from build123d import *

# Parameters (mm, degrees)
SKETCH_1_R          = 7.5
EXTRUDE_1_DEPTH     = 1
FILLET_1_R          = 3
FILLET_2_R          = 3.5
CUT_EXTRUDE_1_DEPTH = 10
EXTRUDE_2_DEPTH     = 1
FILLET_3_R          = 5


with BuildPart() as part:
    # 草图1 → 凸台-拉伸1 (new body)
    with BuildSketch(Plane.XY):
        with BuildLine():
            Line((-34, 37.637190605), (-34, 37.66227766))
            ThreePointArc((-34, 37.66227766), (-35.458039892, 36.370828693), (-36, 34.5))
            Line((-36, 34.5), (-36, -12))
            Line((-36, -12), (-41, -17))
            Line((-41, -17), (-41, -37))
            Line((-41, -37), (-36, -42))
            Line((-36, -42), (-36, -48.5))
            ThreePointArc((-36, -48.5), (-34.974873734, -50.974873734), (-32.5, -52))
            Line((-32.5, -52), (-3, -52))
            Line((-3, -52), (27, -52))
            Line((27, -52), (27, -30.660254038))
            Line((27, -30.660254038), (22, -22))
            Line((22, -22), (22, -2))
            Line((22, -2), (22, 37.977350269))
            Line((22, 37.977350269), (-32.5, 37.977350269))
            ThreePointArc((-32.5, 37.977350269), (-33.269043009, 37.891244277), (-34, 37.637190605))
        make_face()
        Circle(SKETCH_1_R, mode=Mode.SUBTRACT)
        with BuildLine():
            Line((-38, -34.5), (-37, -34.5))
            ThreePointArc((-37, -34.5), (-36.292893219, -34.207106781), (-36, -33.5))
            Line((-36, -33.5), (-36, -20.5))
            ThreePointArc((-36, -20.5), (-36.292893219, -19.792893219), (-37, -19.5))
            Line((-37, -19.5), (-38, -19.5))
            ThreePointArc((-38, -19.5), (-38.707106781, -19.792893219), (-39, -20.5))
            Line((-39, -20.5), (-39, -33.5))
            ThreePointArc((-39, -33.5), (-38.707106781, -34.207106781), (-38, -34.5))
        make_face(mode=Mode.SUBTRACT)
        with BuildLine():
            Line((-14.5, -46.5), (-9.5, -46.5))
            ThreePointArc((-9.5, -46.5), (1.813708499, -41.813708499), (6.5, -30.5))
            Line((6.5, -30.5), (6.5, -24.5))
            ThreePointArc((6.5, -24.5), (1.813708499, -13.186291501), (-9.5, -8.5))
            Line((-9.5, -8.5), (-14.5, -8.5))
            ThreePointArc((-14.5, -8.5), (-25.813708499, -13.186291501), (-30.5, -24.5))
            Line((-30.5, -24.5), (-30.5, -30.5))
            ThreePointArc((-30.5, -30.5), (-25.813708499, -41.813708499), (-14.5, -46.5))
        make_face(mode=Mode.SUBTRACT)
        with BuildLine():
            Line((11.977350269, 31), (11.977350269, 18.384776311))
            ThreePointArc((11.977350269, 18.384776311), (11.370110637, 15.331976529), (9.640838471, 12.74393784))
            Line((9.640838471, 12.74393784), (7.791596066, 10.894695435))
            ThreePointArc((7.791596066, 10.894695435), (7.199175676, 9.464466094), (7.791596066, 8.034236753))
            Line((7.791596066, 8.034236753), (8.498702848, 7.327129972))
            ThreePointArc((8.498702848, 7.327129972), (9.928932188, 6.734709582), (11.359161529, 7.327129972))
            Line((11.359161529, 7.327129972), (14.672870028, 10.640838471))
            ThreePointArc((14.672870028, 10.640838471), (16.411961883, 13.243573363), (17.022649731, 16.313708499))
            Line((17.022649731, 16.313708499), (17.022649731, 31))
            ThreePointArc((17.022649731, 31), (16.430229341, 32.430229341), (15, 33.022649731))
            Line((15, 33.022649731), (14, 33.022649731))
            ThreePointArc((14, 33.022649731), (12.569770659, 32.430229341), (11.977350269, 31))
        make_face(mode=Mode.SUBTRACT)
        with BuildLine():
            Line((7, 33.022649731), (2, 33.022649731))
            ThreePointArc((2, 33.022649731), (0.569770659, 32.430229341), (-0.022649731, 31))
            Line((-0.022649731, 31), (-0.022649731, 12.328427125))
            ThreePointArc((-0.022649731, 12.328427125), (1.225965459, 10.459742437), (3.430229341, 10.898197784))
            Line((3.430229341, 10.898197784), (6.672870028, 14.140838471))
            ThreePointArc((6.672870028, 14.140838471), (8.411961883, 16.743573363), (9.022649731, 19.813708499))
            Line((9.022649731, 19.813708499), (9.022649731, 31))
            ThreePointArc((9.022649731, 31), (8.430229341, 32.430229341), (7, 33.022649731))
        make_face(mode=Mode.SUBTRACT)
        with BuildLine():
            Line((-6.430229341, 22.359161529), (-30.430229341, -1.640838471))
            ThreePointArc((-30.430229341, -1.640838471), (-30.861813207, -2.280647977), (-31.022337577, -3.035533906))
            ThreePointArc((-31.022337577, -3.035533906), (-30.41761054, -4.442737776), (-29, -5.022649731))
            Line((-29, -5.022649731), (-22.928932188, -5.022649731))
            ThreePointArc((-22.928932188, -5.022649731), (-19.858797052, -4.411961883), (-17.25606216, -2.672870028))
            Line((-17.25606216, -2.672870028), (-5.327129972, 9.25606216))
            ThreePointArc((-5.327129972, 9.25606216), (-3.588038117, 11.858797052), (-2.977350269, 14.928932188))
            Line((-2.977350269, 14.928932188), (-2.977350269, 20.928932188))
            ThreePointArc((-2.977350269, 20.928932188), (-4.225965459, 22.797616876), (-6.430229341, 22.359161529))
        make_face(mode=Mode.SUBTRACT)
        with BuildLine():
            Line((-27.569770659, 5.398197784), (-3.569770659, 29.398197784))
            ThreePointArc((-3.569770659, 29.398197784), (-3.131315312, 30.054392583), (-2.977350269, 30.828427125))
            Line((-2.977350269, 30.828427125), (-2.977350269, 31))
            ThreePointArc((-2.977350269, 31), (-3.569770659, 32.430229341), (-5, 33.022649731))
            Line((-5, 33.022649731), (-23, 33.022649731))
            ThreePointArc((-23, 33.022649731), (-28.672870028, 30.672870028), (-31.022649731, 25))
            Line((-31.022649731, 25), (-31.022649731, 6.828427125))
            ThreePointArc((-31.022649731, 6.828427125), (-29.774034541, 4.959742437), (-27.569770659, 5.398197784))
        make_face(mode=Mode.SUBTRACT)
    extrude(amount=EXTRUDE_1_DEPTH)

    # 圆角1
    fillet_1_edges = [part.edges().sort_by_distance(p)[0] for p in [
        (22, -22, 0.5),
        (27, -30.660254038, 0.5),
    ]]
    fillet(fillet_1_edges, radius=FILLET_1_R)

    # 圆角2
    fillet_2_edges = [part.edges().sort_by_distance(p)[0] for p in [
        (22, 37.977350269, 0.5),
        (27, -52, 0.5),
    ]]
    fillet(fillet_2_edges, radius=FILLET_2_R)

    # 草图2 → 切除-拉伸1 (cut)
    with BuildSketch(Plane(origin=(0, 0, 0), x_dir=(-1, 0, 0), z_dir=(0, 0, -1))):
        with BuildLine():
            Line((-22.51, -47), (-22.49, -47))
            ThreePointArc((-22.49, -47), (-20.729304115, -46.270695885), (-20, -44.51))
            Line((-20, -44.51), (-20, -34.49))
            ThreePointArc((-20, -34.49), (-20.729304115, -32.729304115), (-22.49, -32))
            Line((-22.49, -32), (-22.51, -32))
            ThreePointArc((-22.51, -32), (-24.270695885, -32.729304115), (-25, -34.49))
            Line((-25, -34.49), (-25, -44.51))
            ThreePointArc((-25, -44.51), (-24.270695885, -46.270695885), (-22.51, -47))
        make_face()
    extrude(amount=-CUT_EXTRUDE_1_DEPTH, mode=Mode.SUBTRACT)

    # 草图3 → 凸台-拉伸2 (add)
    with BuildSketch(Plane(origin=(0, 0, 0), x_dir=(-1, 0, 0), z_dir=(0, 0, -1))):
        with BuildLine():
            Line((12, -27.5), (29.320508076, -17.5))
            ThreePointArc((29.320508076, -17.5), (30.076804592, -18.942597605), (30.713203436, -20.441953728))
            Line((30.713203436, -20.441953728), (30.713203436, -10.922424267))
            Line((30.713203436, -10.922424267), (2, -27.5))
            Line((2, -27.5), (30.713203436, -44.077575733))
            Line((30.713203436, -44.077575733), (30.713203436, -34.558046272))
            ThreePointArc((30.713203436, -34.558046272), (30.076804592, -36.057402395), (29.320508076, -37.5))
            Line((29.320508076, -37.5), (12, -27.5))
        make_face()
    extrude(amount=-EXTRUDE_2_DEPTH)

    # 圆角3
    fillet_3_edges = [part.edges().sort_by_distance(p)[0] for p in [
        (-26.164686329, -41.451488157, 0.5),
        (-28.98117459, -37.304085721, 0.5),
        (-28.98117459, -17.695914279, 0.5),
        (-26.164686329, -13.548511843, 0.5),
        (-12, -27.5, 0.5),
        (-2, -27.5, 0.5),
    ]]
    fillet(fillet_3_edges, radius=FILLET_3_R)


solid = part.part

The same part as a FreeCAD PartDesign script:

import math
import FreeCAD as App
import Part
import Sketcher
from FreeCAD import Vector
Q = App.Units.Quantity


def edges_at(feature, points):
    """Names of the edges that pass closest to the given points."""
    edges = feature.Shape.Edges
    near = lambda p: min(range(len(edges)), key=lambda i: edges[i].distToShape(Part.Vertex(*p))[0])
    return sorted({f"Edge{near(p) + 1}" for p in points})

doc = App.newDocument("Part")
body = doc.addObject("PartDesign::Body", "Body")

sketch1 = doc.addObject("Sketcher::SketchObject", "Sketch")
body.addObject(sketch1)
sketch1.AttachmentSupport = (doc.XY_Plane, [""])
sketch1.MapMode = "FlatFace"
sketch1.addGeometry(Part.LineSegment(Vector(-34, 37.637, 0), Vector(-34, 37.662, 0)), False)
sketch1.addGeometry(Part.ArcOfCircle(Part.Circle(Vector(-32.5, 34.5, 0), Vector(0, 0, 1), 3.5), math.radians(115), math.radians(180)), False)
sketch1.addGeometry(Part.LineSegment(Vector(-36, 34.5, 0), Vector(-36, -12, 0)), False)
sketch1.addGeometry(Part.LineSegment(Vector(-36, -12, 0), Vector(-41, -17, 0)), False)
sketch1.addGeometry(Part.LineSegment(Vector(-41, -17, 0), Vector(-41, -37, 0)), False)
sketch1.addGeometry(Part.LineSegment(Vector(-41, -37, 0), Vector(-36, -42, 0)), False)
sketch1.addGeometry(Part.LineSegment(Vector(-36, -42, 0), Vector(-36, -48.5, 0)), False)
sketch1.addGeometry(Part.ArcOfCircle(Part.Circle(Vector(-32.5, -48.5, 0), Vector(0, 0, 1), 3.5), math.radians(-180), math.radians(-90)), False)
sketch1.addGeometry(Part.LineSegment(Vector(-32.5, -52, 0), Vector(27, -52, 0)), False)
sketch1.addGeometry(Part.LineSegment(Vector(27, -52, 0), Vector(27, -30.66, 0)), False)
sketch1.addGeometry(Part.LineSegment(Vector(27, -30.66, 0), Vector(22, -22, 0)), False)
sketch1.addGeometry(Part.LineSegment(Vector(22, -22, 0), Vector(22, 37.977, 0)), False)
sketch1.addGeometry(Part.LineSegment(Vector(22, 37.977, 0), Vector(-32.5, 37.977, 0)), False)
sketch1.addGeometry(Part.ArcOfCircle(Part.Circle(Vector(-32.5, 34.5, 0), Vector(0, 0, 1), 3.477), math.radians(90), math.radians(116)), False)
sketch1.addGeometry(Part.LineSegment(Vector(-37, -34.5, 0), Vector(-38, -34.5, 0)), False)
sketch1.addGeometry(Part.ArcOfCircle(Part.Circle(Vector(-38, -33.5, 0), Vector(0, 0, 1), 1), math.radians(-180), math.radians(-90)), False)
sketch1.addGeometry(Part.LineSegment(Vector(-39, -33.5, 0), Vector(-39, -20.5, 0)), False)
sketch1.addGeometry(Part.ArcOfCircle(Part.Circle(Vector(-38, -20.5, 0), Vector(0, 0, 1), 1), math.radians(90), math.radians(180)), False)
sketch1.addGeometry(Part.LineSegment(Vector(-38, -19.5, 0), Vector(-37, -19.5, 0)), False)
sketch1.addGeometry(Part.ArcOfCircle(Part.Circle(Vector(-37, -20.5, 0), Vector(0, 0, 1), 1), math.radians(0), math.radians(90)), False)
sketch1.addGeometry(Part.LineSegment(Vector(-36, -20.5, 0), Vector(-36, -33.5, 0)), False)
sketch1.addGeometry(Part.ArcOfCircle(Part.Circle(Vector(-37, -33.5, 0), Vector(0, 0, 1), 1), math.radians(-90), math.radians(0)), False)
sketch1.addGeometry(Part.LineSegment(Vector(-9.5, -46.5, 0), Vector(-14.5, -46.5, 0)), False)
sketch1.addGeometry(Part.ArcOfCircle(Part.Circle(Vector(-14.5, -30.5, 0), Vector(0, 0, 1), 16), math.radians(180), math.radians(270)), False)
sketch1.addGeometry(Part.LineSegment(Vector(-30.5, -30.5, 0), Vector(-30.5, -24.5, 0)), False)
sketch1.addGeometry(Part.ArcOfCircle(Part.Circle(Vector(-14.5, -24.5, 0), Vector(0, 0, 1), 16), math.radians(90), math.radians(180)), False)
sketch1.addGeometry(Part.LineSegment(Vector(-14.5, -8.5, 0), Vector(-9.5, -8.5, 0)), False)
sketch1.addGeometry(Part.ArcOfCircle(Part.Circle(Vector(-9.5, -24.5, 0), Vector(0, 0, 1), 16), math.radians(0), math.radians(90)), False)
sketch1.addGeometry(Part.LineSegment(Vector(6.5, -24.5, 0), Vector(6.5, -30.5, 0)), False)
sketch1.addGeometry(Part.ArcOfCircle(Part.Circle(Vector(-9.5, -30.5, 0), Vector(0, 0, 1), 16), math.radians(-90), math.radians(0)), False)
sketch1.addGeometry(Part.LineSegment(Vector(-30.43, -1.641, 0), Vector(-6.43, 22.359, 0)), False)
sketch1.addGeometry(Part.ArcOfCircle(Part.Circle(Vector(-5, 20.929, 0), Vector(0, 0, 1), 2.023), math.radians(0), math.radians(135)), False)
sketch1.addGeometry(Part.LineSegment(Vector(-2.977, 20.929, 0), Vector(-2.977, 14.929, 0)), False)
sketch1.addGeometry(Part.ArcOfCircle(Part.Circle(Vector(-11, 14.929, 0), Vector(0, 0, 1), 8.023), math.radians(-45), math.radians(0)), False)
sketch1.addGeometry(Part.LineSegment(Vector(-5.327, 9.256, 0), Vector(-17.256, -2.673, 0)), False)
sketch1.addGeometry(Part.ArcOfCircle(Part.Circle(Vector(-22.929, 3, 0), Vector(0, 0, 1), 8.023), math.radians(-90), math.radians(-45)), False)
sketch1.addGeometry(Part.LineSegment(Vector(-22.929, -5.023, 0), Vector(-29, -5.023, 0)), False)
sketch1.addGeometry(Part.ArcOfCircle(Part.Circle(Vector(-29, -3, 0), Vector(0, 0, 1), 2.023), math.radians(-179), math.radians(-90)), False)
sketch1.addGeometry(Part.ArcOfCircle(Part.Circle(Vector(-29, -3.071, 0), Vector(0, 0, 1), 2.023), math.radians(135), math.radians(179)), False)
sketch1.addGeometry(Part.LineSegment(Vector(-3.57, 29.398, 0), Vector(-27.57, 5.398, 0)), False)
sketch1.addGeometry(Part.ArcOfCircle(Part.Circle(Vector(-29, 6.828, 0), Vector(0, 0, 1), 2.023), math.radians(180), math.radians(315)), False)
sketch1.addGeometry(Part.LineSegment(Vector(-31.023, 6.828, 0), Vector(-31.023, 25, 0)), False)
sketch1.addGeometry(Part.ArcOfCircle(Part.Circle(Vector(-23, 25, 0), Vector(0, 0, 1), 8.023), math.radians(90), math.radians(180)), False)
sketch1.addGeometry(Part.LineSegment(Vector(-23, 33.023, 0), Vector(-5, 33.023, 0)), False)
sketch1.addGeometry(Part.ArcOfCircle(Part.Circle(Vector(-5, 31, 0), Vector(0, 0, 1), 2.023), math.radians(0), math.radians(90)), False)
sketch1.addGeometry(Part.LineSegment(Vector(-2.977, 31, 0), Vector(-2.977, 30.828, 0)), False)
sketch1.addGeometry(Part.ArcOfCircle(Part.Circle(Vector(-5, 30.828, 0), Vector(0, 0, 1), 2.023), math.radians(-45), math.radians(0)), False)
sketch1.addGeometry(Part.Circle(Vector(0, 0, 0), Vector(0, 0, 1), 7.5), False)
sketch1.addGeometry(Part.LineSegment(Vector(2, 33.023, 0), Vector(7, 33.023, 0)), False)
sketch1.addGeometry(Part.ArcOfCircle(Part.Circle(Vector(7, 31, 0), Vector(0, 0, 1), 2.023), math.radians(0), math.radians(90)), False)
sketch1.addGeometry(Part.LineSegment(Vector(9.023, 31, 0), Vector(9.023, 19.814, 0)), False)
sketch1.addGeometry(Part.ArcOfCircle(Part.Circle(Vector(1, 19.814, 0), Vector(0, 0, 1), 8.023), math.radians(-45), math.radians(0)), False)
sketch1.addGeometry(Part.LineSegment(Vector(6.673, 14.141, 0), Vector(3.43, 10.898, 0)), False)
sketch1.addGeometry(Part.ArcOfCircle(Part.Circle(Vector(2, 12.328, 0), Vector(0, 0, 1), 2.023), math.radians(180), math.radians(315)), False)
sketch1.addGeometry(Part.LineSegment(Vector(-0.023, 12.328, 0), Vector(-0.023, 31, 0)), False)
sketch1.addGeometry(Part.ArcOfCircle(Part.Circle(Vector(2, 31, 0), Vector(0, 0, 1), 2.023), math.radians(90), math.radians(180)), False)
sketch1.addGeometry(Part.LineSegment(Vector(11.977, 18.385, 0), Vector(11.977, 31, 0)), False)
sketch1.addGeometry(Part.ArcOfCircle(Part.Circle(Vector(14, 31, 0), Vector(0, 0, 1), 2.023), math.radians(90), math.radians(180)), False)
sketch1.addGeometry(Part.LineSegment(Vector(14, 33.023, 0), Vector(15, 33.023, 0)), False)
sketch1.addGeometry(Part.ArcOfCircle(Part.Circle(Vector(15, 31, 0), Vector(0, 0, 1), 2.023), math.radians(0), math.radians(90)), False)
sketch1.addGeometry(Part.LineSegment(Vector(17.023, 31, 0), Vector(17.023, 16.314, 0)), False)
sketch1.addGeometry(Part.ArcOfCircle(Part.Circle(Vector(9, 16.314, 0), Vector(0, 0, 1), 8.023), math.radians(-45), math.radians(0)), False)
sketch1.addGeometry(Part.LineSegment(Vector(14.673, 10.641, 0), Vector(11.359, 7.327, 0)), False)
sketch1.addGeometry(Part.ArcOfCircle(Part.Circle(Vector(9.929, 8.757, 0), Vector(0, 0, 1), 2.023), math.radians(-135), math.radians(-45)), False)
sketch1.addGeometry(Part.LineSegment(Vector(8.499, 7.327, 0), Vector(7.792, 8.034, 0)), False)
sketch1.addGeometry(Part.ArcOfCircle(Part.Circle(Vector(9.222, 9.464, 0), Vector(0, 0, 1), 2.023), math.radians(135), math.radians(225)), False)
sketch1.addGeometry(Part.LineSegment(Vector(7.792, 10.895, 0), Vector(9.641, 12.744, 0)), False)
sketch1.addGeometry(Part.ArcOfCircle(Part.Circle(Vector(4, 18.385, 0), Vector(0, 0, 1), 7.977), math.radians(-45), math.radians(0)), False)
sketch1.addConstraint(Sketcher.Constraint("Coincident", 0, 2, 1, 1))
sketch1.addConstraint(Sketcher.Constraint("Tangent", 1, 2, 2, 1))
sketch1.addConstraint(Sketcher.Constraint("Coincident", 2, 2, 3, 1))
sketch1.addConstraint(Sketcher.Constraint("Coincident", 3, 2, 4, 1))
sketch1.addConstraint(Sketcher.Constraint("Coincident", 4, 2, 5, 1))
sketch1.addConstraint(Sketcher.Constraint("Coincident", 5, 2, 6, 1))
sketch1.addConstraint(Sketcher.Constraint("Tangent", 6, 2, 7, 1))
sketch1.addConstraint(Sketcher.Constraint("Tangent", 7, 2, 8, 1))
sketch1.addConstraint(Sketcher.Constraint("Coincident", 8, 2, 9, 1))
sketch1.addConstraint(Sketcher.Constraint("Coincident", 9, 2, 10, 1))
sketch1.addConstraint(Sketcher.Constraint("Coincident", 10, 2, 11, 1))
sketch1.addConstraint(Sketcher.Constraint("Coincident", 11, 2, 12, 1))
sketch1.addConstraint(Sketcher.Constraint("Tangent", 12, 2, 13, 1))
sketch1.addConstraint(Sketcher.Constraint("Coincident", 13, 2, 0, 1))
sketch1.addConstraint(Sketcher.Constraint("Tangent", 14, 2, 15, 2))
sketch1.addConstraint(Sketcher.Constraint("Tangent", 15, 1, 16, 1))
sketch1.addConstraint(Sketcher.Constraint("Tangent", 16, 2, 17, 2))
sketch1.addConstraint(Sketcher.Constraint("Tangent", 17, 1, 18, 1))
sketch1.addConstraint(Sketcher.Constraint("Tangent", 18, 2, 19, 2))
sketch1.addConstraint(Sketcher.Constraint("Tangent", 19, 1, 20, 1))
sketch1.addConstraint(Sketcher.Constraint("Tangent", 20, 2, 21, 2))
sketch1.addConstraint(Sketcher.Constraint("Tangent", 21, 1, 14, 1))
sketch1.addConstraint(Sketcher.Constraint("Tangent", 22, 2, 23, 2))
sketch1.addConstraint(Sketcher.Constraint("Tangent", 23, 1, 24, 1))
sketch1.addConstraint(Sketcher.Constraint("Tangent", 24, 2, 25, 2))
sketch1.addConstraint(Sketcher.Constraint("Tangent", 25, 1, 26, 1))
sketch1.addConstraint(Sketcher.Constraint("Tangent", 26, 2, 27, 2))
sketch1.addConstraint(Sketcher.Constraint("Tangent", 27, 1, 28, 1))
sketch1.addConstraint(Sketcher.Constraint("Tangent", 28, 2, 29, 2))
sketch1.addConstraint(Sketcher.Constraint("Tangent", 29, 1, 22, 1))
sketch1.addConstraint(Sketcher.Constraint("Tangent", 30, 2, 31, 2))
sketch1.addConstraint(Sketcher.Constraint("Tangent", 31, 1, 32, 1))
sketch1.addConstraint(Sketcher.Constraint("Tangent", 32, 2, 33, 2))
sketch1.addConstraint(Sketcher.Constraint("Tangent", 33, 1, 34, 1))
sketch1.addConstraint(Sketcher.Constraint("Tangent", 34, 2, 35, 2))
sketch1.addConstraint(Sketcher.Constraint("Tangent", 35, 1, 36, 1))
sketch1.addConstraint(Sketcher.Constraint("Tangent", 36, 2, 37, 2))
sketch1.addConstraint(Sketcher.Constraint("Coincident", 37, 1, 38, 2))
sketch1.addConstraint(Sketcher.Constraint("Tangent", 38, 1, 30, 1))
sketch1.addConstraint(Sketcher.Constraint("Tangent", 39, 2, 40, 2))
sketch1.addConstraint(Sketcher.Constraint("Tangent", 40, 1, 41, 1))
sketch1.addConstraint(Sketcher.Constraint("Tangent", 41, 2, 42, 2))
sketch1.addConstraint(Sketcher.Constraint("Tangent", 42, 1, 43, 1))
sketch1.addConstraint(Sketcher.Constraint("Tangent", 43, 2, 44, 2))
sketch1.addConstraint(Sketcher.Constraint("Tangent", 44, 1, 45, 1))
sketch1.addConstraint(Sketcher.Constraint("Tangent", 45, 2, 46, 2))
sketch1.addConstraint(Sketcher.Constraint("Tangent", 46, 1, 39, 1))
sketch1.addConstraint(Sketcher.Constraint("Tangent", 48, 2, 49, 2))
sketch1.addConstraint(Sketcher.Constraint("Tangent", 49, 1, 50, 1))
sketch1.addConstraint(Sketcher.Constraint("Tangent", 50, 2, 51, 2))
sketch1.addConstraint(Sketcher.Constraint("Tangent", 51, 1, 52, 1))
sketch1.addConstraint(Sketcher.Constraint("Tangent", 52, 2, 53, 2))
sketch1.addConstraint(Sketcher.Constraint("Tangent", 53, 1, 54, 1))
sketch1.addConstraint(Sketcher.Constraint("Tangent", 54, 2, 55, 2))
sketch1.addConstraint(Sketcher.Constraint("Tangent", 55, 1, 48, 1))
sketch1.addConstraint(Sketcher.Constraint("Tangent", 56, 2, 57, 2))
sketch1.addConstraint(Sketcher.Constraint("Tangent", 57, 1, 58, 1))
sketch1.addConstraint(Sketcher.Constraint("Tangent", 58, 2, 59, 2))
sketch1.addConstraint(Sketcher.Constraint("Tangent", 59, 1, 60, 1))
sketch1.addConstraint(Sketcher.Constraint("Tangent", 60, 2, 61, 2))
sketch1.addConstraint(Sketcher.Constraint("Tangent", 61, 1, 62, 1))
sketch1.addConstraint(Sketcher.Constraint("Tangent", 62, 2, 63, 2))
sketch1.addConstraint(Sketcher.Constraint("Tangent", 63, 1, 64, 1))
sketch1.addConstraint(Sketcher.Constraint("Tangent", 64, 2, 65, 2))
sketch1.addConstraint(Sketcher.Constraint("Tangent", 65, 1, 66, 1))
sketch1.addConstraint(Sketcher.Constraint("Tangent", 66, 2, 67, 1))
sketch1.addConstraint(Sketcher.Constraint("Tangent", 67, 2, 56, 1))
sketch1.addConstraint(Sketcher.Constraint("Vertical", 0))
sketch1.addConstraint(Sketcher.Constraint("Vertical", 2))
sketch1.addConstraint(Sketcher.Constraint("Vertical", 4))
sketch1.addConstraint(Sketcher.Constraint("Vertical", 6))
sketch1.addConstraint(Sketcher.Constraint("Horizontal", 8))
sketch1.addConstraint(Sketcher.Constraint("Vertical", 9))
sketch1.addConstraint(Sketcher.Constraint("Vertical", 11))
sketch1.addConstraint(Sketcher.Constraint("Horizontal", 12))
sketch1.addConstraint(Sketcher.Constraint("Horizontal", 14))
sketch1.addConstraint(Sketcher.Constraint("Vertical", 16))
sketch1.addConstraint(Sketcher.Constraint("Horizontal", 18))
sketch1.addConstraint(Sketcher.Constraint("Vertical", 20))
sketch1.addConstraint(Sketcher.Constraint("Horizontal", 22))
sketch1.addConstraint(Sketcher.Constraint("Vertical", 24))
sketch1.addConstraint(Sketcher.Constraint("Horizontal", 26))
sketch1.addConstraint(Sketcher.Constraint("Vertical", 28))
sketch1.addConstraint(Sketcher.Constraint("Vertical", 32))
sketch1.addConstraint(Sketcher.Constraint("Horizontal", 36))
sketch1.addConstraint(Sketcher.Constraint("Vertical", 41))
sketch1.addConstraint(Sketcher.Constraint("Horizontal", 43))
sketch1.addConstraint(Sketcher.Constraint("Vertical", 45))
sketch1.addConstraint(Sketcher.Constraint("Horizontal", 48))
sketch1.addConstraint(Sketcher.Constraint("Vertical", 50))
sketch1.addConstraint(Sketcher.Constraint("Vertical", 54))
sketch1.addConstraint(Sketcher.Constraint("Vertical", 56))
sketch1.addConstraint(Sketcher.Constraint("Horizontal", 58))
sketch1.addConstraint(Sketcher.Constraint("Vertical", 60))
sketch1.addConstraint(Sketcher.Constraint("Coincident", 47, 3, -1, 1))
sketch1.addConstraint(Sketcher.Constraint("Coincident", 13, 3, 1, 3))
sketch1.addConstraint(Sketcher.Constraint("Equal", 1, 7))
sketch1.addConstraint(Sketcher.Constraint("Equal", 15, 17))
sketch1.addConstraint(Sketcher.Constraint("Equal", 17, 19))
sketch1.addConstraint(Sketcher.Constraint("Equal", 19, 21))
sketch1.addConstraint(Sketcher.Constraint("Equal", 23, 25))
sketch1.addConstraint(Sketcher.Constraint("Equal", 25, 27))
sketch1.addConstraint(Sketcher.Constraint("Equal", 27, 29))
sketch1.addConstraint(Sketcher.Constraint("Equal", 33, 35))
sketch1.addConstraint(Sketcher.Constraint("Equal", 31, 37))
sketch1.addConstraint(Sketcher.Constraint("Equal", 37, 38))
sketch1.addConstraint(Sketcher.Constraint("Equal", 38, 40))
sketch1.addConstraint(Sketcher.Constraint("Equal", 35, 42))
sketch1.addConstraint(Sketcher.Constraint("Equal", 40, 44))
sketch1.addConstraint(Sketcher.Constraint("Equal", 44, 46))
sketch1.addConstraint(Sketcher.Constraint("Equal", 46, 49))
sketch1.addConstraint(Sketcher.Constraint("Equal", 42, 51))
sketch1.addConstraint(Sketcher.Constraint("Equal", 49, 53))
sketch1.addConstraint(Sketcher.Constraint("Equal", 53, 55))
sketch1.addConstraint(Sketcher.Constraint("Equal", 55, 57))
sketch1.addConstraint(Sketcher.Constraint("Equal", 57, 59))
sketch1.addConstraint(Sketcher.Constraint("Equal", 51, 61))
sketch1.addConstraint(Sketcher.Constraint("Equal", 59, 63))
sketch1.addConstraint(Sketcher.Constraint("Equal", 63, 65))
sketch1.addConstraint(Sketcher.Constraint("Perpendicular", 3, 5))
sketch1.addConstraint(Sketcher.Constraint("Perpendicular", 5, 30))
sketch1.addConstraint(Sketcher.Constraint("Parallel", 30, 34))
sketch1.addConstraint(Sketcher.Constraint("Parallel", 34, 39))
sketch1.addConstraint(Sketcher.Constraint("Parallel", 39, 52))
sketch1.addConstraint(Sketcher.Constraint("Parallel", 52, 62))
sketch1.addConstraint(Sketcher.Constraint("Perpendicular", 62, 64))
sketch1.addConstraint(Sketcher.Constraint("Perpendicular", 64, 66))
sketch1.addConstraint(Sketcher.Constraint("Horizontal", 44, 3, 49, 3))
sketch1.addConstraint(Sketcher.Constraint("Horizontal", 55, 3, 57, 3))
sketch1.addConstraint(Sketcher.Constraint("Horizontal", 62, 2, 63, 1))
sketch1.addConstraint(Sketcher.Constraint("Vertical", 1, 3, 7, 3))
sketch1.addConstraint(Sketcher.Constraint("Vertical", 37, 3, 38, 3))
sketch1.addConstraint(Sketcher.Constraint("Vertical", 38, 3, 40, 3))
sketch1.addConstraint(Sketcher.Constraint("Vertical", 31, 3, 44, 3))
sketch1.addConstraint(Sketcher.Constraint("Vertical", 6, 2, 19, 1))
sketch1.addConstraint(Sketcher.Constraint("Equal", 26, 48))
sketch1.addConstraint(Sketcher.Constraint("Equal", 18, 58))
sketch1.addConstraint(Sketcher.Constraint("Equal", 28, 32))
sketch1.addConstraint(Sketcher.Constraint("Diameter", 47, Q("15 mm")))
sketch1.addConstraint(Sketcher.Constraint("Radius", 15, Q("1 mm")))
sketch1.addConstraint(Sketcher.Constraint("Radius", 23, Q("16 mm")))
sketch1.addConstraint(Sketcher.Constraint("Radius", 1, Q("3.5 mm")))
sketch1.addConstraint(Sketcher.Constraint("DistanceX", 14, 2, 14, 1, Q("1 mm")))
sketch1.addConstraint(Sketcher.Constraint("DistanceX", 22, 2, 22, 1, Q("5 mm")))
sketch1.addConstraint(Sketcher.Constraint("DistanceX", 43, 1, 43, 2, Q("18 mm")))
sketch1.addConstraint(Sketcher.Constraint("DistanceY", 4, 2, 4, 1, Q("20 mm")))
sketch1.addConstraint(Sketcher.Constraint("DistanceY", 16, 1, 16, 2, Q("13 mm")))
sketch1.addConstraint(Sketcher.Constraint("DistanceY", 24, 1, 24, 2, Q("6 mm")))
sketch1.addConstraint(Sketcher.Constraint("Angle", 10, Q("120 deg")))
sketch1.addConstraint(Sketcher.Constraint("Distance", 10, Q("10 mm")))
sketch1.addConstraint(Sketcher.Constraint("Distance", 64, Q("1 mm")))
sketch1.addConstraint(Sketcher.Constraint("DistanceX", 8, 1, 8, 2, Q("59.5 mm")))
sketch1.addConstraint(Sketcher.Constraint("DistanceY", 2, 2, 2, 1, Q("46.5 mm")))
sketch1.addConstraint(Sketcher.Constraint("DistanceY", 6, 2, 6, 1, Q("6.5 mm")))
sketch1.addConstraint(Sketcher.Constraint("DistanceX", 15, 3, -1, 1, Q("38 mm")))
sketch1.addConstraint(Sketcher.Constraint("DistanceX", 31, 3, -1, 1, Q("5 mm")))
sketch1.addConstraint(Sketcher.Constraint("DistanceX", 33, 3, -1, 1, Q("11 mm")))
sketch1.addConstraint(Sketcher.Constraint("DistanceY", -1, 1, 35, 3, Q("3 mm")))
sketch1.addConstraint(Sketcher.Constraint("DistanceY", -1, 1, 42, 3, Q("25 mm")))
sketch1.addConstraint(Sketcher.Constraint("DistanceX", -1, 1, 49, 3, Q("7 mm")))
sketch1.addConstraint(Sketcher.Constraint("DistanceX", -1, 1, 57, 3, Q("14 mm")))
sketch1.addConstraint(Sketcher.Constraint("DistanceX", -1, 1, 67, 3, Q("4 mm")))
sketch1.addConstraint(Sketcher.Constraint("DistanceX", 0, 2, -1, 1, Q("34 mm")))
sketch1.addConstraint(Sketcher.Constraint("DistanceY", 2, 2, -1, 1, Q("12 mm")))
sketch1.addConstraint(Sketcher.Constraint("DistanceX", 3, 2, -1, 1, Q("41 mm")))
sketch1.addConstraint(Sketcher.Constraint("DistanceY", 10, 2, -1, 1, Q("22 mm")))
sketch1.addConstraint(Sketcher.Constraint("DistanceY", 15, 3, -1, 1, Q("33.5 mm")))
sketch1.addConstraint(Sketcher.Constraint("DistanceX", 23, 3, -1, 1, Q("14.5 mm")))
sketch1.addConstraint(Sketcher.Constraint("DistanceY", 23, 3, -1, 1, Q("30.5 mm")))
sketch1.addConstraint(Sketcher.Constraint("Radius", 13, Q("3.47735 mm")))
sketch1.addConstraint(Sketcher.Constraint("Radius", 31, Q("2.02265 mm")))
sketch1.addConstraint(Sketcher.Constraint("DistanceY", 50, 2, 50, 1, Q("11.186292 mm")))
sketch1.addConstraint(Sketcher.Constraint("DistanceY", 60, 2, 60, 1, Q("14.686292 mm")))
sketch1.addConstraint(Sketcher.Constraint("Distance", 62, Q("4.686292 mm")))
sketch1.addConstraint(Sketcher.Constraint("DistanceX", 36, 2, 36, 1, Q("6.071068 mm")))
sketch1.addConstraint(Sketcher.Constraint("DistanceY", 41, 1, 41, 2, Q("18.171573 mm")))
pad1 = doc.addObject("PartDesign::Pad", "Pad")
body.addObject(pad1)
pad1.Profile = sketch1
pad1.Length = 1
doc.recompute()

fillet = doc.addObject("PartDesign::Fillet", "Fillet")
body.addObject(fillet)
fillet.Base = (pad1, edges_at(pad1, [(22, -22, 0.5), (27, -30.66, 0.5)]))
fillet.Radius = 3
doc.recompute()

fillet2 = doc.addObject("PartDesign::Fillet", "Fillet001")
body.addObject(fillet2)
fillet2.Base = (fillet, edges_at(fillet, [(22, 37.977, 0.5), (27, -52, 0.5)]))
fillet2.Radius = 3.5

sketch2 = doc.addObject("Sketcher::SketchObject", "Sketch001")
body.addObject(sketch2)
sketch2.AttachmentSupport = (doc.XY_Plane, [""])
sketch2.MapMode = "FlatFace"
sketch2.addGeometry(Part.LineSegment(Vector(22.51, -47, 0), Vector(22.49, -47, 0)), False)
sketch2.addGeometry(Part.ArcOfCircle(Part.Circle(Vector(22.49, -44.51, 0), Vector(0, 0, 1), 2.49), math.radians(-180), math.radians(-90)), False)
sketch2.addGeometry(Part.LineSegment(Vector(20, -44.51, 0), Vector(20, -34.49, 0)), False)
sketch2.addGeometry(Part.ArcOfCircle(Part.Circle(Vector(22.49, -34.49, 0), Vector(0, 0, 1), 2.49), math.radians(90), math.radians(180)), False)
sketch2.addGeometry(Part.LineSegment(Vector(22.49, -32, 0), Vector(22.51, -32, 0)), False)
sketch2.addGeometry(Part.ArcOfCircle(Part.Circle(Vector(22.51, -34.49, 0), Vector(0, 0, 1), 2.49), math.radians(0), math.radians(90)), False)
sketch2.addGeometry(Part.LineSegment(Vector(25, -34.49, 0), Vector(25, -44.51, 0)), False)
sketch2.addGeometry(Part.ArcOfCircle(Part.Circle(Vector(22.51, -44.51, 0), Vector(0, 0, 1), 2.49), math.radians(-90), math.radians(0)), False)
sketch2.addConstraint(Sketcher.Constraint("Tangent", 0, 2, 1, 2))
sketch2.addConstraint(Sketcher.Constraint("Tangent", 1, 1, 2, 1))
sketch2.addConstraint(Sketcher.Constraint("Tangent", 2, 2, 3, 2))
sketch2.addConstraint(Sketcher.Constraint("Tangent", 3, 1, 4, 1))
sketch2.addConstraint(Sketcher.Constraint("Tangent", 4, 2, 5, 2))
sketch2.addConstraint(Sketcher.Constraint("Tangent", 5, 1, 6, 1))
sketch2.addConstraint(Sketcher.Constraint("Tangent", 6, 2, 7, 2))
sketch2.addConstraint(Sketcher.Constraint("Tangent", 7, 1, 0, 1))
sketch2.addConstraint(Sketcher.Constraint("Horizontal", 0))
sketch2.addConstraint(Sketcher.Constraint("Vertical", 2))
sketch2.addConstraint(Sketcher.Constraint("Horizontal", 4))
sketch2.addConstraint(Sketcher.Constraint("Vertical", 6))
sketch2.addConstraint(Sketcher.Constraint("Equal", 1, 3))
sketch2.addConstraint(Sketcher.Constraint("Equal", 3, 5))
sketch2.addConstraint(Sketcher.Constraint("Equal", 5, 7))
sketch2.addConstraint(Sketcher.Constraint("Radius", 1, Q("2.49 mm")))
sketch2.addConstraint(Sketcher.Constraint("DistanceY", 0, 2, -1, 1, Q("47 mm")))
sketch2.addConstraint(Sketcher.Constraint("DistanceX", -1, 1, 1, 1, Q("20 mm")))
sketch2.addConstraint(Sketcher.Constraint("DistanceY", 3, 1, -1, 1, Q("32 mm")))
sketch2.addConstraint(Sketcher.Constraint("DistanceX", -1, 1, 5, 1, Q("25 mm")))
pocket1 = doc.addObject("PartDesign::Pocket", "Pocket")
body.addObject(pocket1)
pocket1.Profile = sketch2
pocket1.Length = 10
pocket1.Reversed = True

sketch3 = doc.addObject("Sketcher::SketchObject", "Sketch002")
body.addObject(sketch3)
sketch3.AttachmentSupport = (doc.XY_Plane, [""])
sketch3.MapMode = "FlatFace"
sketch3.addGeometry(Part.LineSegment(Vector(-12, -27.5, 0), Vector(-29.3, -17.5, 0)), False)
sketch3.addGeometry(Part.ArcOfCircle(Part.Circle(Vector(-12, -27.5, 0), Vector(0, 0, 1), 20), math.radians(150), math.radians(159.34)), False)
sketch3.addGeometry(Part.LineSegment(Vector(-30.7, -20.4, 0), Vector(-30.7, -10.9, 0)), False)
sketch3.addGeometry(Part.LineSegment(Vector(-30.7, -10.9, 0), Vector(-2, -27.5, 0)), False)
sketch3.addGeometry(Part.LineSegment(Vector(-2, -27.5, 0), Vector(-30.7, -44.1, 0)), False)
sketch3.addGeometry(Part.LineSegment(Vector(-30.7, -44.1, 0), Vector(-30.7, -34.6, 0)), False)
sketch3.addGeometry(Part.ArcOfCircle(Part.Circle(Vector(-12, -27.5, 0), Vector(0, 0, 1), 20), math.radians(-159.34), math.radians(-150)), False)
sketch3.addGeometry(Part.LineSegment(Vector(-29.3, -37.5, 0), Vector(-12, -27.5, 0)), False)
sketch3.addConstraint(Sketcher.Constraint("Coincident", 0, 2, 1, 1))
sketch3.addConstraint(Sketcher.Constraint("Coincident", 1, 2, 2, 1))
sketch3.addConstraint(Sketcher.Constraint("Coincident", 2, 2, 3, 1))
sketch3.addConstraint(Sketcher.Constraint("Coincident", 3, 2, 4, 1))
sketch3.addConstraint(Sketcher.Constraint("Coincident", 4, 2, 5, 1))
sketch3.addConstraint(Sketcher.Constraint("Coincident", 5, 2, 6, 1))
sketch3.addConstraint(Sketcher.Constraint("Coincident", 6, 2, 7, 1))
sketch3.addConstraint(Sketcher.Constraint("Coincident", 7, 2, 0, 1))
sketch3.addConstraint(Sketcher.Constraint("Vertical", 2))
sketch3.addConstraint(Sketcher.Constraint("Vertical", 5))
sketch3.addConstraint(Sketcher.Constraint("Coincident", 6, 3, 1, 3))
sketch3.addConstraint(Sketcher.Constraint("Coincident", 7, 2, 1, 3))
sketch3.addConstraint(Sketcher.Constraint("Equal", 1, 6))
sketch3.addConstraint(Sketcher.Constraint("Parallel", 0, 3))
sketch3.addConstraint(Sketcher.Constraint("Parallel", 4, 7))
sketch3.addConstraint(Sketcher.Constraint("Horizontal", 6, 3, 3, 2))
sketch3.addConstraint(Sketcher.Constraint("Vertical", 2, 2, 4, 2))
sketch3.addConstraint(Sketcher.Constraint("Vertical", 0, 2, 6, 2))
sketch3.addConstraint(Sketcher.Constraint("Radius", 1, Q("20 mm")))
sketch3.addConstraint(Sketcher.Constraint("Angle", 0, Q("150 deg")))
sketch3.addConstraint(Sketcher.Constraint("DistanceX", 1, 3, -1, 1, Q("12 mm")))
sketch3.addConstraint(Sketcher.Constraint("DistanceX", 3, 2, -1, 1, Q("2 mm")))
sketch3.addConstraint(Sketcher.Constraint("DistanceY", 1, 3, -1, 1, Q("27.5 mm")))
sketch3.addConstraint(Sketcher.Constraint("DistanceY", 2, 1, 2, 2, Q("9.519529 mm")))
pad2 = doc.addObject("PartDesign::Pad", "Pad001")
body.addObject(pad2)
pad2.Profile = sketch3
pad2.Length = 1
doc.recompute()

fillet3 = doc.addObject("PartDesign::Fillet", "Fillet002")
body.addObject(fillet3)
fillet3.Base = (pad2, edges_at(pad2, [
    (-26.165, -41.451, 0.5),
    (-28.981, -37.304, 0.5),
    (-28.981, -17.696, 0.5),
    (-26.165, -13.549, 0.5),
    (-12, -27.5, 0.5),
    (-2, -27.5, 0.5),
]))
fillet3.Radius = 5

doc.recompute()
